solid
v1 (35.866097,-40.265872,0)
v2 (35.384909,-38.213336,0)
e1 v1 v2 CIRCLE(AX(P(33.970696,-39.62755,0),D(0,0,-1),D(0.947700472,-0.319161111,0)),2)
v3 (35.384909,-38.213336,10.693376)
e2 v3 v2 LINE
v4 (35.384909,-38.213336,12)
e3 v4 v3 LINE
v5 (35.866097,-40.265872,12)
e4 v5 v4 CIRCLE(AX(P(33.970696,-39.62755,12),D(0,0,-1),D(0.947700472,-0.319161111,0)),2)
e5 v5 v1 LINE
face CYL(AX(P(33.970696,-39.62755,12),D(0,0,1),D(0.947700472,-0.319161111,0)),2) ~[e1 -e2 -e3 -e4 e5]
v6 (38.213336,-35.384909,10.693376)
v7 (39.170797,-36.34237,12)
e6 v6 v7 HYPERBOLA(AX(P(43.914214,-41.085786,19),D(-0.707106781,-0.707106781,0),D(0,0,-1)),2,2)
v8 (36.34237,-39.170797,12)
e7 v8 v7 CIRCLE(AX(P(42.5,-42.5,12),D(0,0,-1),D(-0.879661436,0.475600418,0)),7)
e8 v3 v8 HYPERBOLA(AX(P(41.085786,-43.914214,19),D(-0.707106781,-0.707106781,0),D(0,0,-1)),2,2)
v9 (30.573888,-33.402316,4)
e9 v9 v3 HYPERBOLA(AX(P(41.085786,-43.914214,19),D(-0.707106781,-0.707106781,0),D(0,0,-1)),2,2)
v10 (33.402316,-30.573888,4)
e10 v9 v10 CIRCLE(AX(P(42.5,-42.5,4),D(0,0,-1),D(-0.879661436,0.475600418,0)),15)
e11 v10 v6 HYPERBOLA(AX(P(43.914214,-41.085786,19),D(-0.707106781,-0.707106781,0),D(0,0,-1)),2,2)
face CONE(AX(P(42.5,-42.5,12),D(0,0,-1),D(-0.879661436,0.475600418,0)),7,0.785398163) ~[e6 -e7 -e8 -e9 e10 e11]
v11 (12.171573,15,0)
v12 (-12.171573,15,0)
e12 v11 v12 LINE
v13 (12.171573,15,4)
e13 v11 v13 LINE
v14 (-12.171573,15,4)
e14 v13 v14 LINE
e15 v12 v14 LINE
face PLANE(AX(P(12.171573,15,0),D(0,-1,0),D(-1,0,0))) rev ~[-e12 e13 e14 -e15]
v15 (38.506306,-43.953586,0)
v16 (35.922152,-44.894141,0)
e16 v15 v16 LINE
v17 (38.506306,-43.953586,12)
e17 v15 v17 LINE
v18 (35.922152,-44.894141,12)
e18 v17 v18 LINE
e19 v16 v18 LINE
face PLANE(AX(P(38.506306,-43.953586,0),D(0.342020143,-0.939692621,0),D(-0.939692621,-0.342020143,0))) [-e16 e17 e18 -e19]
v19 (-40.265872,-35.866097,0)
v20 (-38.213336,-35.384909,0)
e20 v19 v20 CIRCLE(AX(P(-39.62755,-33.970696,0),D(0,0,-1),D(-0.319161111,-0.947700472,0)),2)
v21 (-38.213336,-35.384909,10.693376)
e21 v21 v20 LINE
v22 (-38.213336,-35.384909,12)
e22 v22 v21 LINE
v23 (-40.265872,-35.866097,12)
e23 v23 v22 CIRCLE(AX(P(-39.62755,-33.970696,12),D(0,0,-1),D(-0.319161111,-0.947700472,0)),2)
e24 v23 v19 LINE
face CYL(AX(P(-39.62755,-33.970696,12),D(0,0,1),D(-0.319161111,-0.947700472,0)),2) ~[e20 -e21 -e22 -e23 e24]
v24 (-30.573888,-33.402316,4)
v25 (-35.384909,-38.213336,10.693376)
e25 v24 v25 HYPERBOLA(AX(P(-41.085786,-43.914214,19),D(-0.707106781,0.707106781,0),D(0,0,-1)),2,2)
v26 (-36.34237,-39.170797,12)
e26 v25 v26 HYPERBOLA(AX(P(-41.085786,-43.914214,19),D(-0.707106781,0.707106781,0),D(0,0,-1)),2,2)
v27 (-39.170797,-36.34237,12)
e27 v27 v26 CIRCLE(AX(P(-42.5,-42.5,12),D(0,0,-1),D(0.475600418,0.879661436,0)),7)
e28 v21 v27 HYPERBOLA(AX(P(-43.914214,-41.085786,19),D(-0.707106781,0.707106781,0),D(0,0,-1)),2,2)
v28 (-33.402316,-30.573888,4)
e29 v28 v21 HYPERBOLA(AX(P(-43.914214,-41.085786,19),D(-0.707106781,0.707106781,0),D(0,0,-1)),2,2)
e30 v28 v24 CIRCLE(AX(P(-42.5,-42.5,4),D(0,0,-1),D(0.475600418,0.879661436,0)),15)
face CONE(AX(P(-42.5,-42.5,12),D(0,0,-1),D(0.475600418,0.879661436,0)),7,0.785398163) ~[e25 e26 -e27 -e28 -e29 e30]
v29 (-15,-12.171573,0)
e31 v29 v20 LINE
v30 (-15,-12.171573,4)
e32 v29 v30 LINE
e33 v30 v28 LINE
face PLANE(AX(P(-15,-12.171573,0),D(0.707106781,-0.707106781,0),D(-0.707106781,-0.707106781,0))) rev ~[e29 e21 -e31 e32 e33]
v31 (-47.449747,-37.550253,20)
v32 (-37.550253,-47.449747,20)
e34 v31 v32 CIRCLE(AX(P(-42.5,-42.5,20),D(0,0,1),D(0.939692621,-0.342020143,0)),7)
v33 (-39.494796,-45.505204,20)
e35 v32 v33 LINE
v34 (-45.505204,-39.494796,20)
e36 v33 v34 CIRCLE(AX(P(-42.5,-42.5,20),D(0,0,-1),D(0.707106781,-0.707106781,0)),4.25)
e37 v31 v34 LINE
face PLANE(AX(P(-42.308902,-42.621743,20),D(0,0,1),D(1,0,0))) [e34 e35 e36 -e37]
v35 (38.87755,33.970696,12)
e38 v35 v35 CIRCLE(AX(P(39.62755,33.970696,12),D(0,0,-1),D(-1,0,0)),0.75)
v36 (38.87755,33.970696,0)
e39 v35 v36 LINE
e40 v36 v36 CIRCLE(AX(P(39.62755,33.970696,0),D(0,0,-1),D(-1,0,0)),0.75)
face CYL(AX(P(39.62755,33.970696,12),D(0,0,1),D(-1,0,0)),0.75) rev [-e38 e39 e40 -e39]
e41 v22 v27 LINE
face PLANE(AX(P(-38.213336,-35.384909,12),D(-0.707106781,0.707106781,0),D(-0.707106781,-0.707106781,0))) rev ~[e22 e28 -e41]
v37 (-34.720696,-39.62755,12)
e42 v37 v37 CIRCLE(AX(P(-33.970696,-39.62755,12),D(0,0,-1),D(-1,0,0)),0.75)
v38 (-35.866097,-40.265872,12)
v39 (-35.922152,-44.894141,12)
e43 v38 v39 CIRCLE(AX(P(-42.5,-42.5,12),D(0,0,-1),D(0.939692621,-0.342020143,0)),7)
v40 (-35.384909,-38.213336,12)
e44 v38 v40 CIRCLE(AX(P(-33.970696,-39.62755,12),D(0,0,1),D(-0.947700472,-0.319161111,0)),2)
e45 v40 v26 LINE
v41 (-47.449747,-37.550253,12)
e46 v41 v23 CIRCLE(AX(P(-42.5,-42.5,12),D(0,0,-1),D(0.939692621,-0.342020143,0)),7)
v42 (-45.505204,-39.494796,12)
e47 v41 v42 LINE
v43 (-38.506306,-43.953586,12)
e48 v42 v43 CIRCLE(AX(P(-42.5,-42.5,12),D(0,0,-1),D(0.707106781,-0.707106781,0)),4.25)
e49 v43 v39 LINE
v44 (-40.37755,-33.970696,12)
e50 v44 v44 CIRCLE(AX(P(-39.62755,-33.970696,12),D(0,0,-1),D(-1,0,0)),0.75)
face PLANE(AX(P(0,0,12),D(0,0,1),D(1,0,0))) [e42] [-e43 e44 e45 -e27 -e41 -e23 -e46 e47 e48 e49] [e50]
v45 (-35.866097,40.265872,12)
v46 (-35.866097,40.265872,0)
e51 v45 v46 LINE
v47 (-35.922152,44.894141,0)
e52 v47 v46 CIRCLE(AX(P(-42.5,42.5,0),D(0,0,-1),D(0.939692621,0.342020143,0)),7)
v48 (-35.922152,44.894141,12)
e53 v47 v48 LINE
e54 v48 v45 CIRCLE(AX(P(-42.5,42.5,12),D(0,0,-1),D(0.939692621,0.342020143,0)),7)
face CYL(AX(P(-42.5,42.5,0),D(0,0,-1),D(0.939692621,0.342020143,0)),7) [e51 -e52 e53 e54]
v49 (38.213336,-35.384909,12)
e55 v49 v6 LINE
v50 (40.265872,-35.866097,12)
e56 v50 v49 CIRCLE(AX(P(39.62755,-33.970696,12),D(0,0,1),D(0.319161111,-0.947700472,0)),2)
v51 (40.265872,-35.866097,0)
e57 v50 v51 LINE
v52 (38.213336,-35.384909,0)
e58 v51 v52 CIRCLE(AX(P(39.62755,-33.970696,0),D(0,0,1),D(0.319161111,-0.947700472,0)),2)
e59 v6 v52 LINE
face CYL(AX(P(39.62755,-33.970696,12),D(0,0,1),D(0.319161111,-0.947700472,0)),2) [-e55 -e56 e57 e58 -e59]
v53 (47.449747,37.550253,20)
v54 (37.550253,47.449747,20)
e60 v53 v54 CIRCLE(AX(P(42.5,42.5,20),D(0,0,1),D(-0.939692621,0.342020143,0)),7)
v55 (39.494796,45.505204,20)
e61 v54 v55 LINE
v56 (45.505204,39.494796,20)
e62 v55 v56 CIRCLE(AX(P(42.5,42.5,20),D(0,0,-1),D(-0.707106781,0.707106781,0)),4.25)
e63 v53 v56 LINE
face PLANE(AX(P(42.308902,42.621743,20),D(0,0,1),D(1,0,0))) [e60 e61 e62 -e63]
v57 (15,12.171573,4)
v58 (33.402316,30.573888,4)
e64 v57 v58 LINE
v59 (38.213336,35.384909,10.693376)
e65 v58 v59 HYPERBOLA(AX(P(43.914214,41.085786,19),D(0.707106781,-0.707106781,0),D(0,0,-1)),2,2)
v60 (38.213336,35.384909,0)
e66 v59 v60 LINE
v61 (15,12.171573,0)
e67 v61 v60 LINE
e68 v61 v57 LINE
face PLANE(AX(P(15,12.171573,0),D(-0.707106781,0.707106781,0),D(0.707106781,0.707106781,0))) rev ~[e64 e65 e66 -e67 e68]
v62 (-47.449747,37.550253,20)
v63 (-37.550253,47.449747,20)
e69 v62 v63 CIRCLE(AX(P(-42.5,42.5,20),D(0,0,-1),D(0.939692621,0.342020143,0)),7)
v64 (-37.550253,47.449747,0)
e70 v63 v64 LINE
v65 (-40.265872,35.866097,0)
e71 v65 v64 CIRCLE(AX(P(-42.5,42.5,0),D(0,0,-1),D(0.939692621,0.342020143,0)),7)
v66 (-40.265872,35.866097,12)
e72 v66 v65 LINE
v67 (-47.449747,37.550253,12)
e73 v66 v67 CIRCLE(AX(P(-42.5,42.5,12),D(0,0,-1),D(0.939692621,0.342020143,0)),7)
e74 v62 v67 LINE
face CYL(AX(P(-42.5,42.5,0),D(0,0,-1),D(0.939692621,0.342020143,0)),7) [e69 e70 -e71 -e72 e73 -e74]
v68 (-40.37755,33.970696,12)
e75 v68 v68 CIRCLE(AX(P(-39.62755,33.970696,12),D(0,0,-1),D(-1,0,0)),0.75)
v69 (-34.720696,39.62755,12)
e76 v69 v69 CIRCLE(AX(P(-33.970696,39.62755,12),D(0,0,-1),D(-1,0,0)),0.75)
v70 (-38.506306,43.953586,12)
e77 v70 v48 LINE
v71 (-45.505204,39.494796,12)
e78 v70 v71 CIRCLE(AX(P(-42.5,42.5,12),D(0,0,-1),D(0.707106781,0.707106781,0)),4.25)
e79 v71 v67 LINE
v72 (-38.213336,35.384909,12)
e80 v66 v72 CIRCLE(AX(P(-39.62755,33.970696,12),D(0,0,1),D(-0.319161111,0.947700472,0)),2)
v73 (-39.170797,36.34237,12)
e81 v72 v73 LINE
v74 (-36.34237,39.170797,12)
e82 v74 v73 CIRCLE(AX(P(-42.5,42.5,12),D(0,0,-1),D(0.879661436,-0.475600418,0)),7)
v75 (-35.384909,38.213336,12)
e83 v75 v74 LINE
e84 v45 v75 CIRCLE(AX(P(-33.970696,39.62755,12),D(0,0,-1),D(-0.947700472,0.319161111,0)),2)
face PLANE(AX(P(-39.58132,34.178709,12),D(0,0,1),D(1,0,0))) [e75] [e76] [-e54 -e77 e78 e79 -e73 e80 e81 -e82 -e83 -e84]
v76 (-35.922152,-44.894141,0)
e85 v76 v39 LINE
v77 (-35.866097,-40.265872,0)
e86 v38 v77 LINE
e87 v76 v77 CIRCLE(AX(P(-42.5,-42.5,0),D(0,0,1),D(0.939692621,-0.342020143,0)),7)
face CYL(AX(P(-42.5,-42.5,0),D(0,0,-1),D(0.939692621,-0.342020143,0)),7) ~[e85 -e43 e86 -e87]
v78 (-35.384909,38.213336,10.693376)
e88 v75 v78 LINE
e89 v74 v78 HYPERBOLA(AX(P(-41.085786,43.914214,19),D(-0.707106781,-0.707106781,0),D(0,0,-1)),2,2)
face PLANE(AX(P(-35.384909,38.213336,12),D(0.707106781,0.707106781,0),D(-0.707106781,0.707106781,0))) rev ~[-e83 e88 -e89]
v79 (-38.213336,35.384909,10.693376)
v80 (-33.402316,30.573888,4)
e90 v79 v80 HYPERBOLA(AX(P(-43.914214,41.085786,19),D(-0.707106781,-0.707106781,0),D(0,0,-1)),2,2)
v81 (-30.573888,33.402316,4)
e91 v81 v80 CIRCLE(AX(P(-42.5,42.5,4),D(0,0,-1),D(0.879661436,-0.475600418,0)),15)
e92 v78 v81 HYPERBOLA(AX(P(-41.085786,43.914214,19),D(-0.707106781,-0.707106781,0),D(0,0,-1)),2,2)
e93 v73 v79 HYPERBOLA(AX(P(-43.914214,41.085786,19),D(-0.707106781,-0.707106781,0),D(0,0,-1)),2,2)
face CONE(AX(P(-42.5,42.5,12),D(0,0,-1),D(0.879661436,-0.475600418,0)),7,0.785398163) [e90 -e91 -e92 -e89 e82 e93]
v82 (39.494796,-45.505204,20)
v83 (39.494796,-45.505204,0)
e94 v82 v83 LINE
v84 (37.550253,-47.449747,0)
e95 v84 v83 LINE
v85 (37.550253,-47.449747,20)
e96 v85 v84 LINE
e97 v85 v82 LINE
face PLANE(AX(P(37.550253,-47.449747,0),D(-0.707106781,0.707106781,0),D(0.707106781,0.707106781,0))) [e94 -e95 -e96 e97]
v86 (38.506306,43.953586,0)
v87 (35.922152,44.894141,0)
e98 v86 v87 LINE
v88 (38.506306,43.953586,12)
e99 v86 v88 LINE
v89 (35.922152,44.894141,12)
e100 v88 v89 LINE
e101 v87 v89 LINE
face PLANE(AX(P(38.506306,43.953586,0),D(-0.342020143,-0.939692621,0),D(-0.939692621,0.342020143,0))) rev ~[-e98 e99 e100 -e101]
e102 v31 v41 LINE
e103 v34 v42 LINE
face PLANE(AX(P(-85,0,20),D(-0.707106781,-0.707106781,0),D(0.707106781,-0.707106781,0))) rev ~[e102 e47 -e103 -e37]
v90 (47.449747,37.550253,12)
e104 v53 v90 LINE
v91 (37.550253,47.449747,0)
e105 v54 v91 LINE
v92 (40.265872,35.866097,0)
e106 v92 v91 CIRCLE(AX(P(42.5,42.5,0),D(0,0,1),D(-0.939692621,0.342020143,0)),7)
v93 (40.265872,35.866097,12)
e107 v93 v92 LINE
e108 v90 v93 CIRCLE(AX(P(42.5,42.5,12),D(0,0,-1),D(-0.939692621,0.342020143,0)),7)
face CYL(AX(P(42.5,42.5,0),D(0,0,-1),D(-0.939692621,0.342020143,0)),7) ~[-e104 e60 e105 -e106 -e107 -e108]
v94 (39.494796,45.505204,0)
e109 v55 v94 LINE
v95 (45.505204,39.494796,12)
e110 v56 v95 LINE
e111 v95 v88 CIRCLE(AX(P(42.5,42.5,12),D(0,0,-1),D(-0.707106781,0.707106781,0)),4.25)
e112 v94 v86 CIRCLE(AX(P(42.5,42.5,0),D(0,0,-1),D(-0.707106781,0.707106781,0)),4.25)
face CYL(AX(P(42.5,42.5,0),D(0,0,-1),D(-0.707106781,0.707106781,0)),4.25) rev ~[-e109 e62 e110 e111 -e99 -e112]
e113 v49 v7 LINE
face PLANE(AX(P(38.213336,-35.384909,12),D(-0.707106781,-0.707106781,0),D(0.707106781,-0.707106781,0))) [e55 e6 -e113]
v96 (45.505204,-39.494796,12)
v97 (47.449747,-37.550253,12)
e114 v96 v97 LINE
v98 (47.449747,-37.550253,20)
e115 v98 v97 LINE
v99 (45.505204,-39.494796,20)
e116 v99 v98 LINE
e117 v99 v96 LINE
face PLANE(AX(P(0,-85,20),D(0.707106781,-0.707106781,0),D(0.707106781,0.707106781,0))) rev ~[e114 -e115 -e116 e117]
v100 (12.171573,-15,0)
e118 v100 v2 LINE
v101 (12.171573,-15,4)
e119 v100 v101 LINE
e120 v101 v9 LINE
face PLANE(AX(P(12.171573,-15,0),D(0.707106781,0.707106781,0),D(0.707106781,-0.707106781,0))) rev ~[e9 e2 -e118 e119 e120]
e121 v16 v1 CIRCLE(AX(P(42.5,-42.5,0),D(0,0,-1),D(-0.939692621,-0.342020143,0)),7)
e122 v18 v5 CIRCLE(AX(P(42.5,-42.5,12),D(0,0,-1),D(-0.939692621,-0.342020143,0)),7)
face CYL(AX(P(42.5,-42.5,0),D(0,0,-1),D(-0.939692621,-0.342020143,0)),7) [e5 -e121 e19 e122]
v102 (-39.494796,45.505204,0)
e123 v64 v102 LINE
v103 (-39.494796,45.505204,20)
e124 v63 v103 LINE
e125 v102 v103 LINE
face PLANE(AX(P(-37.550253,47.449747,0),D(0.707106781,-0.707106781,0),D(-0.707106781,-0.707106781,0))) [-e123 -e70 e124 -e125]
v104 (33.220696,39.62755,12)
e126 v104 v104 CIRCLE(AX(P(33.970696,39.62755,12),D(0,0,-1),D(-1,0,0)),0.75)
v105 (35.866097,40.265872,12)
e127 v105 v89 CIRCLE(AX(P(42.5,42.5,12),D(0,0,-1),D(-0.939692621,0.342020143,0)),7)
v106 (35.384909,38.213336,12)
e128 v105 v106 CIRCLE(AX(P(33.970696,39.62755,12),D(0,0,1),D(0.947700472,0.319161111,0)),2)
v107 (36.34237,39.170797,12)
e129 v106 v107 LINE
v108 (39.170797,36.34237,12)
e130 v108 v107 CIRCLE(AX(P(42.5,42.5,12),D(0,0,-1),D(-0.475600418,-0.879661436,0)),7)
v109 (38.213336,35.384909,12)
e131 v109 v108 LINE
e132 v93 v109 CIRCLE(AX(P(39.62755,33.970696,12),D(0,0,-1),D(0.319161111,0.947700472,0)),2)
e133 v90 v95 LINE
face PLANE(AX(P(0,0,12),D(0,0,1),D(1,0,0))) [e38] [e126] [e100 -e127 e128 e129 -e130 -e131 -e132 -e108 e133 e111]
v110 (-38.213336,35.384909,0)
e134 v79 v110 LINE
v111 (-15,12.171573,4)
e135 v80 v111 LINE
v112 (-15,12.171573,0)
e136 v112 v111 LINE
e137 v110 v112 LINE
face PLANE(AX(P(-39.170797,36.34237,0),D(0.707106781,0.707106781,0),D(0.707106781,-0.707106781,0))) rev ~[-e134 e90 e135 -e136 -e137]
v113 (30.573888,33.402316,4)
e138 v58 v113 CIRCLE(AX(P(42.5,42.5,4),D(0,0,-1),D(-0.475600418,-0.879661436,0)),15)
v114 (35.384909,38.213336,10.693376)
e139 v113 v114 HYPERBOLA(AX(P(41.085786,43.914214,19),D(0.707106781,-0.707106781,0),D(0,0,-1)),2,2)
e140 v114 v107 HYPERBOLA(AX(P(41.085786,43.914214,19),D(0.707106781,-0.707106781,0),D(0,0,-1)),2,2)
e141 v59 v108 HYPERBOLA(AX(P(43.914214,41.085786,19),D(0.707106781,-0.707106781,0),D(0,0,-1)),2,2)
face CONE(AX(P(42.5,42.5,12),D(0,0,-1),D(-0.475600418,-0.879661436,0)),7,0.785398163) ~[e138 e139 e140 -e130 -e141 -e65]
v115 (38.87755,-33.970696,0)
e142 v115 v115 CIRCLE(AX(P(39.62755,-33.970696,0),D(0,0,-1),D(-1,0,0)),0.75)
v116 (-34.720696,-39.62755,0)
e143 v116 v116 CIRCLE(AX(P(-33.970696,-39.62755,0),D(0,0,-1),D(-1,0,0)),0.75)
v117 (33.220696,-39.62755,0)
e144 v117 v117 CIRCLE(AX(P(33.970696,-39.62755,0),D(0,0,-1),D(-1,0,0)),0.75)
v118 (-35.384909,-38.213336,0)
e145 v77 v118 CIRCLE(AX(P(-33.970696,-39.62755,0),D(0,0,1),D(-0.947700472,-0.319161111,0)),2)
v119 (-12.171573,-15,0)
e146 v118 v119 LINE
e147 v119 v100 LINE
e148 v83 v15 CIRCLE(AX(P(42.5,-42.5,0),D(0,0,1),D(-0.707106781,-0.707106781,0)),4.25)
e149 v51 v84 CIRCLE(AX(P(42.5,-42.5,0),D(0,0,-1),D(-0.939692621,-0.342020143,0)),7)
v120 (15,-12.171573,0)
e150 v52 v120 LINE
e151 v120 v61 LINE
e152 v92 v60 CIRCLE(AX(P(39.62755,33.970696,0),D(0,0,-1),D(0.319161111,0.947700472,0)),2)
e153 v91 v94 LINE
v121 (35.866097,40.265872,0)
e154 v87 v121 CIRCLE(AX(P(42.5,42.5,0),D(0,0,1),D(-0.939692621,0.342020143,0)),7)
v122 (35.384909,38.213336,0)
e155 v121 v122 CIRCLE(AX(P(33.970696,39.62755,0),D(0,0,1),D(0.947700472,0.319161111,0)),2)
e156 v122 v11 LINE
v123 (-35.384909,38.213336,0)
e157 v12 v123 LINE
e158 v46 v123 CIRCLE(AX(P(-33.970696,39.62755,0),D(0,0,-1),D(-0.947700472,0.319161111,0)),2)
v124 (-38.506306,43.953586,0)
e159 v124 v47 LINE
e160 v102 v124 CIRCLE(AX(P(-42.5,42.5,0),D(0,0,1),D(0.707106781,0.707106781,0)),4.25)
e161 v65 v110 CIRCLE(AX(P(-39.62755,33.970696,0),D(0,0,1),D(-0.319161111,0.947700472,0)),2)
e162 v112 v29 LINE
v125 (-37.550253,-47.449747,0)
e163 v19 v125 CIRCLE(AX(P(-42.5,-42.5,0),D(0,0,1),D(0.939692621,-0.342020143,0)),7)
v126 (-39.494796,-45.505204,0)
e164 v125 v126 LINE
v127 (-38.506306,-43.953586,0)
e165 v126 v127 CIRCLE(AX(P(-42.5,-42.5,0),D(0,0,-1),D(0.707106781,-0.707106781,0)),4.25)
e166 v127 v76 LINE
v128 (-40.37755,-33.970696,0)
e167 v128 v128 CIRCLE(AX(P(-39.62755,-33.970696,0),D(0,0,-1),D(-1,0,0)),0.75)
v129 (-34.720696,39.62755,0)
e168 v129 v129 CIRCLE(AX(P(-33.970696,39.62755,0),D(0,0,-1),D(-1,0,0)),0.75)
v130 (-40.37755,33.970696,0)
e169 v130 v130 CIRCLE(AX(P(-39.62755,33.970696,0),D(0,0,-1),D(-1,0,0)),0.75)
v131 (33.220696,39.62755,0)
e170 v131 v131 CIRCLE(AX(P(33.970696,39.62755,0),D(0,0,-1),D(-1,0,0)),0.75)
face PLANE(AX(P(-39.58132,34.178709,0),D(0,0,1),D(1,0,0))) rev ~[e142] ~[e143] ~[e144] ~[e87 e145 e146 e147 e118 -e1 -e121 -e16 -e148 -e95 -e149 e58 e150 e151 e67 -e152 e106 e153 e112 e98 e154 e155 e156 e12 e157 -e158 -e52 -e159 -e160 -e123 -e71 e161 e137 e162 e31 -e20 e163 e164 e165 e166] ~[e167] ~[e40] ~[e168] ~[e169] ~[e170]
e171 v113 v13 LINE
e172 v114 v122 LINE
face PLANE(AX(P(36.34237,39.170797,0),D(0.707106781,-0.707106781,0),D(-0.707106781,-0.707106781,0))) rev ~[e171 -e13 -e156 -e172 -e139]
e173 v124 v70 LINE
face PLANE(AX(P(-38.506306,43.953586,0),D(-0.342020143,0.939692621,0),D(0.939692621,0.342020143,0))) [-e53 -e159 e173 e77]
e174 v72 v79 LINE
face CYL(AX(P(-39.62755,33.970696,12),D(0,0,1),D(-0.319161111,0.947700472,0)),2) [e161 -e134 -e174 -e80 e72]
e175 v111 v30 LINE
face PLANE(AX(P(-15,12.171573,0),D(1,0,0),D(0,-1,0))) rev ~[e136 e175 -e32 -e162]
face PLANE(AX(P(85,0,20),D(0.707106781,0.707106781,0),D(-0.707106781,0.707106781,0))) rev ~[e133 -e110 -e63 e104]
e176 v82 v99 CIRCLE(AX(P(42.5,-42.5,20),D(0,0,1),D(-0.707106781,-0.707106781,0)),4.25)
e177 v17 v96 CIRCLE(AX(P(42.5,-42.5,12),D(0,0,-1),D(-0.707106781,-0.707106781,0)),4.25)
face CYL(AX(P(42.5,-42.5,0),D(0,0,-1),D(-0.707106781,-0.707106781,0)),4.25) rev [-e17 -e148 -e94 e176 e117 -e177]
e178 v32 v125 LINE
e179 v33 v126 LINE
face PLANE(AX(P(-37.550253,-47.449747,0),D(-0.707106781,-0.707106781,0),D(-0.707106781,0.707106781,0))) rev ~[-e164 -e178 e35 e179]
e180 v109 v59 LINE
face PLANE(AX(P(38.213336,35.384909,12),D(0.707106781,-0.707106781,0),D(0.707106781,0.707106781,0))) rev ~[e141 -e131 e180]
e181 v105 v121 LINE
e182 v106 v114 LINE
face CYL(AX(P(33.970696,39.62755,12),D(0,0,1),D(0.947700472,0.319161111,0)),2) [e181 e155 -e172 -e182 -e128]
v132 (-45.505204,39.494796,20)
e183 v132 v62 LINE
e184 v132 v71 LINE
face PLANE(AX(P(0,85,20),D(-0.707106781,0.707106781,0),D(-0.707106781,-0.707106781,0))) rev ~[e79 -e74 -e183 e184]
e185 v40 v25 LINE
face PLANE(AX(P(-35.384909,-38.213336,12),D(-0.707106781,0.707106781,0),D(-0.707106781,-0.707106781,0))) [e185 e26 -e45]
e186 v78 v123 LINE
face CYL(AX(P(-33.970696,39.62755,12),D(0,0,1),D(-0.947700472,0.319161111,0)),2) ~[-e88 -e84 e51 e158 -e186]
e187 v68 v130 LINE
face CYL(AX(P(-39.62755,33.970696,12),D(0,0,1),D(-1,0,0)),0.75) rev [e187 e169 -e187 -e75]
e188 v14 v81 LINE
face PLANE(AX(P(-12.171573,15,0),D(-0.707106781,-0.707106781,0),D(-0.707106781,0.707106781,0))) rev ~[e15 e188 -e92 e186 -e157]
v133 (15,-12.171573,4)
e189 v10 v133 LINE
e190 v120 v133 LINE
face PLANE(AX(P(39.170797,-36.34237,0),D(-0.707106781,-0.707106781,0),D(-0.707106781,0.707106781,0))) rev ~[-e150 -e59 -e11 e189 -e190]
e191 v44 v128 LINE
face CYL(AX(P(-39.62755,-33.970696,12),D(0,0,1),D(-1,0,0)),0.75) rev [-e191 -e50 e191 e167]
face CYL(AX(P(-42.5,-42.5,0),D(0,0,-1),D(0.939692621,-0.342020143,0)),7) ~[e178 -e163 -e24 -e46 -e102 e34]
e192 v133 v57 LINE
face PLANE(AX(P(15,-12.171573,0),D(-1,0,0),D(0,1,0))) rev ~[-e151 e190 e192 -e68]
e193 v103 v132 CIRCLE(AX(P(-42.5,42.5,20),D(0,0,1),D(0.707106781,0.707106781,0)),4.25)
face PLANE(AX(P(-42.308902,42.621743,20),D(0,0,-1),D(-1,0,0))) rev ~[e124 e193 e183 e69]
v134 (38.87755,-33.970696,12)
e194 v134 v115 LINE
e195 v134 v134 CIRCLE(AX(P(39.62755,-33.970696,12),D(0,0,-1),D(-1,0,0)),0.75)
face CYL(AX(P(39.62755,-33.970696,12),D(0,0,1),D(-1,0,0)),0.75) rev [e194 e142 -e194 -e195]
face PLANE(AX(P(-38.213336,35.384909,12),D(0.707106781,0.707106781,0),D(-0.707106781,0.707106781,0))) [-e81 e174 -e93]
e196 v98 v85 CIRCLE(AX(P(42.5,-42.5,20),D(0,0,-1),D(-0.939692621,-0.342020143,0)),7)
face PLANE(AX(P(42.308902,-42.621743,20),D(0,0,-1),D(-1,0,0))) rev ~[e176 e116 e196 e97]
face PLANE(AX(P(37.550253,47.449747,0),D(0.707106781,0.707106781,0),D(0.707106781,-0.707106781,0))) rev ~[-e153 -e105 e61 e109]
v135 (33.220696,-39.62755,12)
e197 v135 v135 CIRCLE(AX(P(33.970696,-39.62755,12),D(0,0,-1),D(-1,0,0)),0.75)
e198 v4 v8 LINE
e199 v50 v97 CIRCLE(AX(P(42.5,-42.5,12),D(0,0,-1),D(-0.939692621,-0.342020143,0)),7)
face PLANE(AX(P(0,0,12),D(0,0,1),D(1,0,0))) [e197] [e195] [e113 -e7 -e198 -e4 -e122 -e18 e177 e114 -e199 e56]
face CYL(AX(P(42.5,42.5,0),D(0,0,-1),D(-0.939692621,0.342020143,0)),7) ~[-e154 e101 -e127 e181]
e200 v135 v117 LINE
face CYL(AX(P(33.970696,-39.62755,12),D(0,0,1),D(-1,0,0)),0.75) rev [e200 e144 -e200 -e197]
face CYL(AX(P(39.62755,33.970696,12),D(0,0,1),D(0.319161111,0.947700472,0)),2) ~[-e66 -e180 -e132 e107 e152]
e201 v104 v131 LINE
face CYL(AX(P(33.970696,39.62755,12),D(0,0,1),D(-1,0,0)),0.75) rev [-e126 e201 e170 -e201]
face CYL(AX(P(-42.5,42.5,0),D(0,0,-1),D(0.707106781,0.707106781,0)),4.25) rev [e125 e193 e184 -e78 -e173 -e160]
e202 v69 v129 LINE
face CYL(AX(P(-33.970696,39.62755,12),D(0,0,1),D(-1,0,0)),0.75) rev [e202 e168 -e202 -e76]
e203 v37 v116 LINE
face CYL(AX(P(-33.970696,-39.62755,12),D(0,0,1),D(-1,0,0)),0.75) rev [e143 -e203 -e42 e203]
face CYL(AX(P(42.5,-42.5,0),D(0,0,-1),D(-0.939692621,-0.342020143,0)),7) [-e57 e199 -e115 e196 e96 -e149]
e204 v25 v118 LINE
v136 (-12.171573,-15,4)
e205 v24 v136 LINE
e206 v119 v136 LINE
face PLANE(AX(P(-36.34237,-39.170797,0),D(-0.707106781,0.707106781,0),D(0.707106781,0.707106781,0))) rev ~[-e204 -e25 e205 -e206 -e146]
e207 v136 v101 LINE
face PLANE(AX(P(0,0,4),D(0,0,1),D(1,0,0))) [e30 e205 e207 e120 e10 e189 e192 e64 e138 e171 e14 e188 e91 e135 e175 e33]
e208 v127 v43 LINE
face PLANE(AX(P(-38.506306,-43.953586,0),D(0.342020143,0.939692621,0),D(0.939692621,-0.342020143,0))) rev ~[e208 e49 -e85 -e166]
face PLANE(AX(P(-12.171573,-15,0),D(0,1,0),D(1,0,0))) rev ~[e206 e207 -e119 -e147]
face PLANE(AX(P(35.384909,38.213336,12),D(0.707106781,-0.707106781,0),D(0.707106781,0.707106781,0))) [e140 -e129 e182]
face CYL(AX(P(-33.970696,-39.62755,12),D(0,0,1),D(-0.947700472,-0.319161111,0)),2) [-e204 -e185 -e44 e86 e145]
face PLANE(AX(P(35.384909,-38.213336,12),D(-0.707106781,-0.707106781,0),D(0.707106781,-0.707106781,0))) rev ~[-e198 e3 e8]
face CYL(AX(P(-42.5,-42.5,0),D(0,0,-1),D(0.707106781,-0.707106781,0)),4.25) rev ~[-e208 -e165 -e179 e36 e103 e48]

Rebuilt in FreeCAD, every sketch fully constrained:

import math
import FreeCAD as App
import Part
import Sketcher

V = App.Vector
Q = App.Units.Quantity


def edges_at(feature, points):
    """Names of the edges that pass closest to the given points."""
    edges = feature.Shape.Edges
    near = lambda p: min(range(len(edges)), key=lambda i: edges[i].distToShape(Part.Vertex(*p))[0])
    return sorted({f"Edge{near(p) + 1}" for p in points})

doc = App.newDocument("Part")
body = doc.addObject("PartDesign::Body", "Body")

# Sketch on XY plane
sketch1 = body.newObject("Sketcher::SketchObject", "Sketch")
sketch1.AttachmentSupport = (doc.getObject("XY_Plane"), [""])
sketch1.MapMode = "FlatFace"
sketch1.addGeometry([
    Part.ArcOfCircle(Part.Circle(V(42.5, 42.5, 0), V(0, 0, 1), 7), math.radians(-151.60155), math.radians(-118.39845)),  # 0
    Part.LineSegment(V(36.34237, 39.170797, 0), V(12.171573, 15, 0)),  # 1
    Part.LineSegment(V(12.171573, 15, 0), V(-12.171573, 15, 0)),  # 2
    Part.LineSegment(V(-12.171573, 15, 0), V(-36.34237, 39.170797, 0)),  # 3
    Part.ArcOfCircle(Part.Circle(V(-42.5, 42.5, 0), V(0, 0, 1), 7), math.radians(-61.60155), math.radians(-28.39845)),  # 4
    Part.LineSegment(V(-39.170797, 36.34237, 0), V(-15, 12.171573, 0)),  # 5
    Part.LineSegment(V(-15, 12.171573, 0), V(-15, -12.171573, 0)),  # 6
    Part.LineSegment(V(-15, -12.171573, 0), V(-39.170797, -36.34237, 0)),  # 7
    Part.ArcOfCircle(Part.Circle(V(-42.5, -42.5, 0), V(0, 0, 1), 7), math.radians(28.39845), math.radians(61.60155)),  # 8
    Part.LineSegment(V(-36.34237, -39.170797, 0), V(-12.171573, -15, 0)),  # 9
    Part.LineSegment(V(-12.171573, -15, 0), V(12.171573, -15, 0)),  # 10
    Part.LineSegment(V(12.171573, -15, 0), V(36.34237, -39.170797, 0)),  # 11
    Part.ArcOfCircle(Part.Circle(V(42.5, -42.5, 0), V(0, 0, 1), 7), math.radians(118.39845), math.radians(151.60155)),  # 12
    Part.LineSegment(V(39.170797, -36.34237, 0), V(15, -12.171573, 0)),  # 13
    Part.LineSegment(V(15, -12.171573, 0), V(15, 12.171573, 0)),  # 14
    Part.LineSegment(V(15, 12.171573, 0), V(39.170797, 36.34237, 0)),  # 15
], False)
sketch1.addConstraint([
    Sketcher.Constraint("Coincident", 0, 1, 1, 1),
    Sketcher.Constraint("Coincident", 1, 2, 2, 1),
    Sketcher.Constraint("Coincident", 2, 2, 3, 1),
    Sketcher.Constraint("Coincident", 3, 2, 4, 2),
    Sketcher.Constraint("Coincident", 4, 1, 5, 1),
    Sketcher.Constraint("Coincident", 5, 2, 6, 1),
    Sketcher.Constraint("Coincident", 6, 2, 7, 1),
    Sketcher.Constraint("Coincident", 7, 2, 8, 2),
    Sketcher.Constraint("Coincident", 8, 1, 9, 1),
    Sketcher.Constraint("Coincident", 9, 2, 10, 1),
    Sketcher.Constraint("Coincident", 10, 2, 11, 1),
    Sketcher.Constraint("Coincident", 11, 2, 12, 2),
    Sketcher.Constraint("Coincident", 12, 1, 13, 1),
    Sketcher.Constraint("Coincident", 13, 2, 14, 1),
    Sketcher.Constraint("Coincident", 14, 2, 15, 1),
    Sketcher.Constraint("Coincident", 15, 2, 0, 2),
    Sketcher.Constraint("Horizontal", 2),
    Sketcher.Constraint("Vertical", 6),
    Sketcher.Constraint("Horizontal", 10),
    Sketcher.Constraint("Vertical", 14),
    Sketcher.Constraint("Equal", 0, 4),
    Sketcher.Constraint("Equal", 4, 8),
    Sketcher.Constraint("Equal", 8, 12),
    Sketcher.Constraint("Symmetric", 0, 3, 8, 3, -1, 1),
    Sketcher.Constraint("Symmetric", 4, 3, 12, 3, -1, 1),
    Sketcher.Constraint("Symmetric", 1, 2, 9, 2, -1, 1),
    Sketcher.Constraint("Symmetric", 5, 2, 13, 2, -1, 1),
    Sketcher.Constraint("Symmetric", 0, 3, 4, 3, -2),
    Sketcher.Constraint("Perpendicular", 1, 3),
    Sketcher.Constraint("Parallel", 3, 5),
    Sketcher.Constraint("Perpendicular", 5, 7),
    Sketcher.Constraint("Parallel", 7, 9),
    Sketcher.Constraint("Perpendicular", 9, 11),
    Sketcher.Constraint("Parallel", 11, 13),
    Sketcher.Constraint("Perpendicular", 13, 15),
    Sketcher.Constraint("Horizontal", 0, 1, 3, 2),
    Sketcher.Constraint("Horizontal", 8, 1, 11, 2),
    Sketcher.Constraint("Horizontal", 7, 2, 12, 1),
    Sketcher.Constraint("Horizontal", 6, 2, 13, 2),
    Sketcher.Constraint("Horizontal", 5, 2, 14, 2),
    Sketcher.Constraint("Equal", 10, 6),
    Sketcher.Constraint("Equal", 3, 5),
    Sketcher.Constraint("Radius", 0, Q("7 mm")),
    Sketcher.Constraint("DistanceY", -1, 1, 1, 2, Q("15 mm")),
    Sketcher.Constraint("DistanceX", 5, 2, -1, 1, Q("15 mm")),
    Sketcher.Constraint("DistanceX", 4, 3, 0, 3, Q("85 mm")),
    Sketcher.Constraint("Distance", 1, Q("34.182669 mm")),
])
pad1 = body.newObject("PartDesign::Pad", "Pad")
pad1.Profile = sketch1
pad1.Length = 4

# Sketch on XY plane
sketch2 = body.newObject("Sketcher::SketchObject", "Sketch001")
sketch2.AttachmentSupport = (doc.getObject("XY_Plane"), [""])
sketch2.MapMode = "FlatFace"
sketch2.addGeometry([
    Part.LineSegment(V(-35.922152, 44.894141, 0), V(-38.506306, 43.953586, 0)),  # 0
    Part.ArcOfCircle(Part.Circle(V(-42.5, 42.5, 0), V(0, 0, 1), 4.25), math.radians(45), math.radians(380)),  # 1
    Part.LineSegment(V(-39.494796, 45.505204, 0), V(-37.550253, 47.449747, 0)),  # 2
    Part.ArcOfCircle(Part.Circle(V(-42.5, 42.5, 0), V(0, 0, 1), 7), math.radians(45), math.radians(380)),  # 3
    Part.LineSegment(V(37.550253, 47.449747, 0), V(39.494796, 45.505204, 0)),  # 4
    Part.ArcOfCircle(Part.Circle(V(42.5, 42.5, 0), V(0, 0, 1), 4.25), math.radians(160), math.radians(495)),  # 5
    Part.LineSegment(V(38.506306, 43.953586, 0), V(35.922152, 44.894141, 0)),  # 6
    Part.ArcOfCircle(Part.Circle(V(42.5, 42.5, 0), V(0, 0, 1), 7), math.radians(160), math.radians(495)),  # 7
    Part.ArcOfCircle(Part.Circle(V(42.5, -42.5, 0), V(0, 0, 1), 7), math.radians(-135), math.radians(200)),  # 8
    Part.LineSegment(V(35.922152, -44.894141, 0), V(38.506306, -43.953586, 0)),  # 9
    Part.ArcOfCircle(Part.Circle(V(42.5, -42.5, 0), V(0, 0, 1), 4.25), math.radians(-135), math.radians(200)),  # 10
    Part.LineSegment(V(39.494796, -45.505204, 0), V(37.550253, -47.449747, 0)),  # 11
    Part.ArcOfCircle(Part.Circle(V(-42.5, -42.5, 0), V(0, 0, 1), 7), math.radians(-20), math.radians(315)),  # 12
    Part.LineSegment(V(-37.550253, -47.449747, 0), V(-39.494796, -45.505204, 0)),  # 13
    Part.ArcOfCircle(Part.Circle(V(-42.5, -42.5, 0), V(0, 0, 1), 4.25), math.radians(-20), math.radians(315)),  # 14
    Part.LineSegment(V(-38.506306, -43.953586, 0), V(-35.922152, -44.894141, 0)),  # 15
], False)
sketch2.addConstraint([
    Sketcher.Constraint("Coincident", 0, 2, 1, 2),
    Sketcher.Constraint("Coincident", 1, 1, 2, 1),
    Sketcher.Constraint("Coincident", 2, 2, 3, 1),
    Sketcher.Constraint("Coincident", 3, 2, 0, 1),
    Sketcher.Constraint("Coincident", 4, 2, 5, 2),
    Sketcher.Constraint("Coincident", 5, 1, 6, 1),
    Sketcher.Constraint("Coincident", 6, 2, 7, 1),
    Sketcher.Constraint("Coincident", 7, 2, 4, 1),
    Sketcher.Constraint("Coincident", 8, 2, 9, 1),
    Sketcher.Constraint("Coincident", 9, 2, 10, 2),
    Sketcher.Constraint("Coincident", 10, 1, 11, 1),
    Sketcher.Constraint("Coincident", 11, 2, 8, 1),
    Sketcher.Constraint("Coincident", 12, 2, 13, 1),
    Sketcher.Constraint("Coincident", 13, 2, 14, 2),
    Sketcher.Constraint("Coincident", 14, 1, 15, 1),
    Sketcher.Constraint("Coincident", 15, 2, 12, 1),
    Sketcher.Constraint("Coincident", 3, 3, 1, 3),
    Sketcher.Constraint("Coincident", 7, 3, 5, 3),
    Sketcher.Constraint("Coincident", 10, 3, 8, 3),
    Sketcher.Constraint("Coincident", 14, 3, 12, 3),
    Sketcher.Constraint("Equal", 1, 5),
    Sketcher.Constraint("Equal", 3, 7),
    Sketcher.Constraint("Equal", 7, 8),
    Sketcher.Constraint("Equal", 5, 10),
    Sketcher.Constraint("Equal", 8, 12),
    Sketcher.Constraint("Equal", 10, 14),
    Sketcher.Constraint("Symmetric", 1, 3, 8, 3, -1, 1),
    Sketcher.Constraint("Symmetric", 5, 3, 12, 3, -1, 1),
    Sketcher.Constraint("Symmetric", 1, 3, 5, 3, -2),
    Sketcher.Constraint("Perpendicular", 2, 4),
    Sketcher.Constraint("Parallel", 0, 9),
    Sketcher.Constraint("Perpendicular", 4, 11),
    Sketcher.Constraint("Perpendicular", 11, 13),
    Sketcher.Constraint("Parallel", 6, 15),
    Sketcher.Constraint("Horizontal", 1, 1, 4, 2),
    Sketcher.Constraint("Horizontal", 0, 2, 5, 1),
    Sketcher.Constraint("Horizontal", 3, 2, 6, 2),
    Sketcher.Constraint("Horizontal", 2, 2, 7, 2),
    Sketcher.Constraint("Horizontal", 11, 2, 12, 2),
    Sketcher.Constraint("Horizontal", 9, 2, 14, 1),
    Sketcher.Constraint("Vertical", 6, 2, 8, 2),
    Sketcher.Constraint("Vertical", 4, 2, 10, 1),
    Sketcher.Constraint("Radius", 3, Q("7 mm")),
    Sketcher.Constraint("Angle", 0, Q("-160 deg")),
    Sketcher.Constraint("Radius", 1, Q("4.25 mm")),
    Sketcher.Constraint("DistanceX", 1, 3, 5, 3, Q("85 mm")),
    Sketcher.Constraint("DistanceY", 8, 3, 5, 3, Q("85 mm")),
    Sketcher.Constraint("DistanceX", 2, 2, 3, 2, Q("1.628101 mm")),
    Sketcher.Constraint("DistanceX", 3, 2, -1, 1, Q("35.922152 mm")),
])
pad2 = body.newObject("PartDesign::Pad", "Pad001")
pad2.Profile = sketch2
pad2.Length = 20
doc.recompute()

chamfer = body.newObject("PartDesign::Chamfer", "Chamfer")
chamfer.Base = (pad2, edges_at(pad2, [
    (37.55, 37.55, 4),
    (-37.55, 37.55, 4),
    (-37.55, -37.55, 4),
    (37.55, -37.55, 4),
]))
chamfer.Size = 8

# Sketch on XY plane
sketch3 = body.newObject("Sketcher::SketchObject", "Sketch002")
sketch3.AttachmentSupport = (doc.getObject("XY_Plane"), [""])
sketch3.MapMode = "FlatFace"
sketch3.AttachmentOffset = App.Placement(V(0, 0, 20), App.Rotation())
sketch3.addGeometry([
    Part.LineSegment(V(85, 0, 0), V(0, 85, 0)),
    Part.LineSegment(V(0, 85, 0), V(-85, 0, 0)),
    Part.LineSegment(V(-85, 0, 0), V(0, -85, 0)),
    Part.LineSegment(V(0, -85, 0), V(85, 0, 0)),
], False)
sketch3.addConstraint([
    Sketcher.Constraint("Coincident", 0, 2, 1, 1),
    Sketcher.Constraint("Coincident", 1, 2, 2, 1),
    Sketcher.Constraint("Coincident", 2, 2, 3, 1),
    Sketcher.Constraint("Coincident", 3, 2, 0, 1),
    Sketcher.Constraint("Symmetric", 0, 2, 2, 2, -1, 1),
    Sketcher.Constraint("Symmetric", 1, 2, 3, 2, -1, 1),
    Sketcher.Constraint("PointOnObject", 0, 2, -2),
    Sketcher.Constraint("PointOnObject", 1, 2, -1),
    Sketcher.Constraint("Perpendicular", 0, 1),
    Sketcher.Constraint("DistanceY", -1, 1, 0, 2, Q("85 mm")),
])
pocket1 = body.newObject("PartDesign::Pocket", "Pocket")
pocket1.Profile = sketch3
pocket1.Length = 8

# Sketch on XY plane
sketch4 = body.newObject("Sketcher::SketchObject", "Sketch003")
sketch4.AttachmentSupport = (doc.getObject("XY_Plane"), [""])
sketch4.MapMode = "FlatFace"
sketch4.AttachmentOffset = App.Placement(V(0, 0, 12), App.Rotation())
sketch4.addGeometry([
    Part.LineSegment(V(-39.170797, 36.34237, 0), V(-38.213336, 35.384909, 0)),  # 0
    Part.ArcOfCircle(Part.Circle(V(-39.62755, 33.970696, 0), V(0, 0, 1), 2), math.radians(108.6122), math.radians(405)),  # 1
    Part.ArcOfCircle(Part.Circle(V(-42.5, 42.5, 0), V(0, 0, 1), 7), math.radians(-71.3878), math.radians(-61.60155)),  # 2
    Part.Circle(V(-39.62755, 33.970696, 0), V(0, 0, 1), 0.75),  # 3
    Part.LineSegment(V(-35.384909, 38.213336, 0), V(-36.34237, 39.170797, 0)),  # 4
    Part.ArcOfCircle(Part.Circle(V(-42.5, 42.5, 0), V(0, 0, 1), 7), math.radians(-28.39845), math.radians(-18.6122)),  # 5
    Part.ArcOfCircle(Part.Circle(V(-33.970696, 39.62755, 0), V(0, 0, 1), 2), math.radians(-135), math.radians(161.3878)),  # 6
    Part.Circle(V(-33.970696, 39.62755, 0), V(0, 0, 1), 0.75),  # 7
    Part.LineSegment(V(-36.34237, -39.170797, 0), V(-35.384909, -38.213336, 0)),  # 8
    Part.ArcOfCircle(Part.Circle(V(-33.970696, -39.62755, 0), V(0, 0, 1), 2), math.radians(-161.3878), math.radians(135)),  # 9
    Part.ArcOfCircle(Part.Circle(V(-42.5, -42.5, 0), V(0, 0, 1), 7), math.radians(18.6122), math.radians(28.39845)),  # 10
    Part.Circle(V(-33.970696, -39.62755, 0), V(0, 0, 1), 0.75),  # 11
    Part.LineSegment(V(-38.213336, -35.384909, 0), V(-39.170797, -36.34237, 0)),  # 12
    Part.ArcOfCircle(Part.Circle(V(-42.5, -42.5, 0), V(0, 0, 1), 7), math.radians(61.60155), math.radians(71.3878)),  # 13
    Part.ArcOfCircle(Part.Circle(V(-39.62755, -33.970696, 0), V(0, 0, 1), 2), math.radians(-45), math.radians(251.3878)),  # 14
    Part.Circle(V(-39.62755, -33.970696, 0), V(0, 0, 1), 0.75),  # 15
    Part.LineSegment(V(39.170797, -36.34237, 0), V(38.213336, -35.384909, 0)),  # 16
    Part.ArcOfCircle(Part.Circle(V(39.62755, -33.970696, 0), V(0, 0, 1), 2), math.radians(-71.3878), math.radians(225)),  # 17
    Part.ArcOfCircle(Part.Circle(V(42.5, -42.5, 0), V(0, 0, 1), 7), math.radians(108.6122), math.radians(118.39845)),  # 18
    Part.Circle(V(39.62755, -33.970696, 0), V(0, 0, 1), 0.75),  # 19
    Part.LineSegment(V(35.384909, -38.213336, 0), V(36.34237, -39.170797, 0)),  # 20
    Part.ArcOfCircle(Part.Circle(V(42.5, -42.5, 0), V(0, 0, 1), 7), math.radians(151.60155), math.radians(161.3878)),  # 21
    Part.ArcOfCircle(Part.Circle(V(33.970696, -39.62755, 0), V(0, 0, 1), 2), math.radians(45), math.radians(341.3878)),  # 22
    Part.Circle(V(33.970696, -39.62755, 0), V(0, 0, 1), 0.75),  # 23
    Part.LineSegment(V(36.34237, 39.170797, 0), V(35.384909, 38.213336, 0)),  # 24
    Part.ArcOfCircle(Part.Circle(V(33.970696, 39.62755, 0), V(0, 0, 1), 2), math.radians(18.6122), math.radians(315)),  # 25
    Part.ArcOfCircle(Part.Circle(V(42.5, 42.5, 0), V(0, 0, 1), 7), math.radians(-161.3878), math.radians(-151.60155)),  # 26
    Part.Circle(V(33.970696, 39.62755, 0), V(0, 0, 1), 0.75),  # 27
    Part.LineSegment(V(38.213336, 35.384909, 0), V(39.170797, 36.34237, 0)),  # 28
    Part.ArcOfCircle(Part.Circle(V(42.5, 42.5, 0), V(0, 0, 1), 7), math.radians(-118.39845), math.radians(-108.6122)),  # 29
    Part.ArcOfCircle(Part.Circle(V(39.62755, 33.970696, 0), V(0, 0, 1), 2), math.radians(135), math.radians(431.3878)),  # 30
    Part.Circle(V(39.62755, 33.970696, 0), V(0, 0, 1), 0.75),  # 31
], False)
sketch4.addConstraint([
    Sketcher.Constraint("Tangent", 0, 2, 1, 2),
    Sketcher.Constraint("Tangent", 1, 1, 2, 1),
    Sketcher.Constraint("Coincident", 2, 2, 0, 1),
    Sketcher.Constraint("Coincident", 4, 2, 5, 1),
    Sketcher.Constraint("Tangent", 5, 2, 6, 2),
    Sketcher.Constraint("Tangent", 6, 1, 4, 1),
    Sketcher.Constraint("Tangent", 8, 2, 9, 2),
    Sketcher.Constraint("Tangent", 9, 1, 10, 1),
    Sketcher.Constraint("Coincident", 10, 2, 8, 1),
    Sketcher.Constraint("Coincident", 12, 2, 13, 1),
    Sketcher.Constraint("Tangent", 13, 2, 14, 2),
    Sketcher.Constraint("Tangent", 14, 1, 12, 1),
    Sketcher.Constraint("Tangent", 16, 2, 17, 2),
    Sketcher.Constraint("Tangent", 17, 1, 18, 1),
    Sketcher.Constraint("Coincident", 18, 2, 16, 1),
    Sketcher.Constraint("Coincident", 20, 2, 21, 1),
    Sketcher.Constraint("Tangent", 21, 2, 22, 2),
    Sketcher.Constraint("Tangent", 22, 1, 20, 1),
    Sketcher.Constraint("Tangent", 24, 2, 25, 2),
    Sketcher.Constraint("Tangent", 25, 1, 26, 1),
    Sketcher.Constraint("Coincident", 26, 2, 24, 1),
    Sketcher.Constraint("Coincident", 28, 2, 29, 1),
    Sketcher.Constraint("Tangent", 29, 2, 30, 2),
    Sketcher.Constraint("Tangent", 30, 1, 28, 1),
    Sketcher.Constraint("Coincident", 3, 3, 1, 3),
    Sketcher.Constraint("Coincident", 5, 3, 2, 3),
    Sketcher.Constraint("Coincident", 7, 3, 6, 3),
    Sketcher.Constraint("Coincident", 11, 3, 9, 3),
    Sketcher.Constraint("Coincident", 13, 3, 10, 3),
    Sketcher.Constraint("Coincident", 15, 3, 14, 3),
    Sketcher.Constraint("Coincident", 19, 3, 17, 3),
    Sketcher.Constraint("Coincident", 21, 3, 18, 3),
    Sketcher.Constraint("Coincident", 23, 3, 22, 3),
    Sketcher.Constraint("Coincident", 27, 3, 25, 3),
    Sketcher.Constraint("Coincident", 29, 3, 26, 3),
    Sketcher.Constraint("Coincident", 31, 3, 30, 3),
    Sketcher.Constraint("Equal", 2, 5),
    Sketcher.Constraint("Equal", 1, 6),
    Sketcher.Constraint("Equal", 3, 7),
    Sketcher.Constraint("Equal", 6, 9),
    Sketcher.Constraint("Equal", 5, 10),
    Sketcher.Constraint("Equal", 7, 11),
    Sketcher.Constraint("Equal", 10, 13),
    Sketcher.Constraint("Equal", 9, 14),
    Sketcher.Constraint("Equal", 11, 15),
    Sketcher.Constraint("Equal", 14, 17),
    Sketcher.Constraint("Equal", 13, 18),
    Sketcher.Constraint("Equal", 15, 19),
    Sketcher.Constraint("Equal", 18, 21),
    Sketcher.Constraint("Equal", 17, 22),
    Sketcher.Constraint("Equal", 19, 23),
    Sketcher.Constraint("Equal", 22, 25),
    Sketcher.Constraint("Equal", 21, 26),
    Sketcher.Constraint("Equal", 23, 27),
    Sketcher.Constraint("Equal", 26, 29),
    Sketcher.Constraint("Equal", 25, 30),
    Sketcher.Constraint("Equal", 27, 31),
    Sketcher.Constraint("Symmetric", 1, 3, 17, 3, -1, 1),
    Sketcher.Constraint("Symmetric", 6, 3, 22, 3, -1, 1),
    Sketcher.Constraint("Symmetric", 9, 3, 25, 3, -1, 1),
    Sketcher.Constraint("Symmetric", 14, 3, 30, 3, -1, 1),
    Sketcher.Constraint("Symmetric", 14, 3, 17, 3, -2),
    Sketcher.Constraint("Symmetric", 9, 3, 22, 3, -2),
    Sketcher.Constraint("Parallel", 0, 4),
    Sketcher.Constraint("Perpendicular", 4, 8),
    Sketcher.Constraint("Parallel", 8, 12),
    Sketcher.Constraint("Perpendicular", 12, 16),
    Sketcher.Constraint("Parallel", 16, 20),
    Sketcher.Constraint("Perpendicular", 20, 24),
    Sketcher.Constraint("Parallel", 24, 28),
    Sketcher.Constraint("Horizontal", 14, 1, 16, 2),
    Sketcher.Constraint("Equal", 0, 4),
    Sketcher.Constraint("Radius", 1, Q("2 mm")),
    Sketcher.Constraint("Radius", 2, Q("7 mm")),
    Sketcher.Constraint("Diameter", 3, Q("1.5 mm")),
    Sketcher.Constraint("DistanceX", 2, 3, -1, 1, Q("42.5 mm")),
    Sketcher.Constraint("DistanceY", -1, 1, 2, 3, Q("42.5 mm")),
    Sketcher.Constraint("DistanceY", 9, 3, 6, 3, Q("79.2551 mm")),
])
pad3 = body.newObject("PartDesign::Pad", "Pad002")
pad3.Profile = sketch4
pad3.Length = 12
pad3.Reversed = True

doc.recompute()
